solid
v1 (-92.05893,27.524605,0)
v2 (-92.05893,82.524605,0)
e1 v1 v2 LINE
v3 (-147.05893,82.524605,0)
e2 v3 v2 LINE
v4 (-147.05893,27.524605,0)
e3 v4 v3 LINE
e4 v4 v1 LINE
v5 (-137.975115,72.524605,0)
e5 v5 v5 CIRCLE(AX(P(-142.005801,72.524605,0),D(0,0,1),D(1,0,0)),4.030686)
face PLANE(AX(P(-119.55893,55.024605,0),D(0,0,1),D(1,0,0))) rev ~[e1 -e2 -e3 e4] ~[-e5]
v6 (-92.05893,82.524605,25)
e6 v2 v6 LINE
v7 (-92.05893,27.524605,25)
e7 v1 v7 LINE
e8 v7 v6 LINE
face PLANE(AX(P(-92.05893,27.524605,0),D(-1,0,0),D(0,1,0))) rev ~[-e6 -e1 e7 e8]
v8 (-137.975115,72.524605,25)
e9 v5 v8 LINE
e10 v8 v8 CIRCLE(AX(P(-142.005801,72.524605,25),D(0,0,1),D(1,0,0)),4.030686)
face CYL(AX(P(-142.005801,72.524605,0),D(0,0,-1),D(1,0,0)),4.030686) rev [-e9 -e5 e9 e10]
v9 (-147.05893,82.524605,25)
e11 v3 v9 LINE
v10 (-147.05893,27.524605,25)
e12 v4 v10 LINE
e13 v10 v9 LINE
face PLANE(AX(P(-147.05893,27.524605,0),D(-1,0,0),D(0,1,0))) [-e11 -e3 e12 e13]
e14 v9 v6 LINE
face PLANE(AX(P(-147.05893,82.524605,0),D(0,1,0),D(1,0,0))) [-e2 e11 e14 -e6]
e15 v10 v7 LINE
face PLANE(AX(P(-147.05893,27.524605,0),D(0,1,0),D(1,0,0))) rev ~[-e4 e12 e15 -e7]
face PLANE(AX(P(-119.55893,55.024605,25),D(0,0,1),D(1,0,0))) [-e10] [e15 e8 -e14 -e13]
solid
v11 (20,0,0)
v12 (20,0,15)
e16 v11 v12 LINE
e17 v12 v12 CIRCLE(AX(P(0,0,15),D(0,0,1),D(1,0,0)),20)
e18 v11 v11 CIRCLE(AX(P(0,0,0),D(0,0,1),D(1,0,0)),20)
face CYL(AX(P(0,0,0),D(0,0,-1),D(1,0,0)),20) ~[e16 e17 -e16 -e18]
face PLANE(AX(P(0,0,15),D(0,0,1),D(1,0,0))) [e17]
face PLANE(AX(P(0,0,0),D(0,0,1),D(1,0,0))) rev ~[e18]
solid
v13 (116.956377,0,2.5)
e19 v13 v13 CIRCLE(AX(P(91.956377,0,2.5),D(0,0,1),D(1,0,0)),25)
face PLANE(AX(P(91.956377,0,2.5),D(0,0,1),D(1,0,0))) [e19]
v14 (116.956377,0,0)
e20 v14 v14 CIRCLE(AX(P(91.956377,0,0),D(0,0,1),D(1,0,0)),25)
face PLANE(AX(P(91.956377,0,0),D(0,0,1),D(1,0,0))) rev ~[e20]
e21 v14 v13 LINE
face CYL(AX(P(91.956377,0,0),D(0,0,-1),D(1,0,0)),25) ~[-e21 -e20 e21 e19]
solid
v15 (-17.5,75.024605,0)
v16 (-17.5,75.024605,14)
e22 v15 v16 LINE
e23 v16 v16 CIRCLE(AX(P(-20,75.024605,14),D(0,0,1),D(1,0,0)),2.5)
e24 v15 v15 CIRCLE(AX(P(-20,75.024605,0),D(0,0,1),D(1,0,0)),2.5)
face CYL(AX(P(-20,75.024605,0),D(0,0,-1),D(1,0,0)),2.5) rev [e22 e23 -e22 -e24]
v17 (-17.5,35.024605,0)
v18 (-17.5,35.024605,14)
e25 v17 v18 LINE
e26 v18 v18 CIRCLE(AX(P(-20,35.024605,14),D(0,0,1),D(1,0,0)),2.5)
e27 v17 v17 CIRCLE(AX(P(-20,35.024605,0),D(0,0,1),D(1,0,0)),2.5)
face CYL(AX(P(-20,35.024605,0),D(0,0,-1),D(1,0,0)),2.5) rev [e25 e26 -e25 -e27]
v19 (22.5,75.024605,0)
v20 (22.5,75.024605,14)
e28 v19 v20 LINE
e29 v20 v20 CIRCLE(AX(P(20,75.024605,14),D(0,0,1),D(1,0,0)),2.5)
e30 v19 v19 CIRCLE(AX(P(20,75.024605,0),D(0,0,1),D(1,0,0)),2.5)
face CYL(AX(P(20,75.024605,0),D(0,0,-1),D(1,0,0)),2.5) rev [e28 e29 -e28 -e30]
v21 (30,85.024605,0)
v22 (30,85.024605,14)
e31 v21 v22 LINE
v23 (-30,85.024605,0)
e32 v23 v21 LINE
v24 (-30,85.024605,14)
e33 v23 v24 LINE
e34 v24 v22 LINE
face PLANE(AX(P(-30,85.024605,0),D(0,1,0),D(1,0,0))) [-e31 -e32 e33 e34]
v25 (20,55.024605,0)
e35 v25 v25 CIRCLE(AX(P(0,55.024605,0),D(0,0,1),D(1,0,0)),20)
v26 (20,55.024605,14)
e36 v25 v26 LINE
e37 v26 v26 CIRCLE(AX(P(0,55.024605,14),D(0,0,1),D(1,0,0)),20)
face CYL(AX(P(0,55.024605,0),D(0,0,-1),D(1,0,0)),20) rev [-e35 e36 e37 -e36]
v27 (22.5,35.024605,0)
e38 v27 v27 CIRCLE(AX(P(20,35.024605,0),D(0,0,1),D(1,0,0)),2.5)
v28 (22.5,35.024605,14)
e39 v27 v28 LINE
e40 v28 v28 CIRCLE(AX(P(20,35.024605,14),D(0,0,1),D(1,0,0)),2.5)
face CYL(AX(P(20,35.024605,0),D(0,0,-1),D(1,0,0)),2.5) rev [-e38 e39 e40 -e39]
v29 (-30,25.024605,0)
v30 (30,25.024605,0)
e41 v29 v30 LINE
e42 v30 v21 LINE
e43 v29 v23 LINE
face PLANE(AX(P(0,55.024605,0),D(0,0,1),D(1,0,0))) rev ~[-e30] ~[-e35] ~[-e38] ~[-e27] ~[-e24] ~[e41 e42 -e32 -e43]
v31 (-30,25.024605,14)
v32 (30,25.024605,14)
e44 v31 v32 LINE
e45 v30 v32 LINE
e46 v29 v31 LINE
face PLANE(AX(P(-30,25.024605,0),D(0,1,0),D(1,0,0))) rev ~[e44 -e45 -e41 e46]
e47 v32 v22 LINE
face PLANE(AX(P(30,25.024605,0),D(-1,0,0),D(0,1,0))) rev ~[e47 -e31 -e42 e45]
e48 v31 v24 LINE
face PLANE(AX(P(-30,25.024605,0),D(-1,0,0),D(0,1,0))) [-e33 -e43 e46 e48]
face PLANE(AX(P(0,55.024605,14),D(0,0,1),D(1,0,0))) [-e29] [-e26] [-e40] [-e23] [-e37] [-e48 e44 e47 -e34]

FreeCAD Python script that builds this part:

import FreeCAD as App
import Part
import Sketcher

V = App.Vector

doc = App.newDocument("Part")
body = doc.addObject("PartDesign::Body", "Body")

# Sketch on XY plane
sketch1 = body.newObject("Sketcher::SketchObject", "Sketch")
sketch1.AttachmentSupport = (doc.getObject("XY_Plane"), [""])
sketch1.MapMode = "FlatFace"
sketch1.addGeometry(Part.Circle(V(0, 0, 0), V(0, 0, 1), 20), False)
sketch1.addConstraint(Sketcher.Constraint("Coincident", 0, 3, -1, 1))
sketch1.addConstraint(Sketcher.Constraint("Diameter", 0, 40.0))
pad1 = body.newObject("PartDesign::Pad", "Pad")
pad1.Profile = sketch1
pad1.Length = 15
body2 = doc.addObject("PartDesign::Body", "Body001")

# Sketch on XY plane
sketch2 = body2.newObject("Sketcher::SketchObject", "Sketch001")
sketch2.AttachmentSupport = (doc.getObject("XY_Plane001"), [""])
sketch2.MapMode = "FlatFace"
sketch2.addGeometry(Part.LineSegment(V(-30, 85, 0), V(-30, 25, 0)), False)
sketch2.addGeometry(Part.LineSegment(V(-30, 25, 0), V(30, 25, 0)), False)
sketch2.addGeometry(Part.LineSegment(V(30, 25, 0), V(30, 85, 0)), False)
sketch2.addGeometry(Part.LineSegment(V(30, 85, 0), V(-30, 85, 0)), False)
sketch2.addGeometry(Part.Circle(V(-20, 35, 0), V(0, 0, 1), 2.5), False)
sketch2.addGeometry(Part.Circle(V(20, 35, 0), V(0, 0, 1), 2.5), False)
sketch2.addGeometry(Part.Circle(V(-20, 75, 0), V(0, 0, 1), 2.5), False)
sketch2.addGeometry(Part.Circle(V(0, 55, 0), V(0, 0, 1), 20), False)
sketch2.addGeometry(Part.Circle(V(20, 75, 0), V(0, 0, 1), 2.5), False)
sketch2.addConstraint(Sketcher.Constraint("Coincident", 0, 2, 1, 1))
sketch2.addConstraint(Sketcher.Constraint("Coincident", 1, 2, 2, 1))
sketch2.addConstraint(Sketcher.Constraint("Coincident", 2, 2, 3, 1))
sketch2.addConstraint(Sketcher.Constraint("Coincident", 3, 2, 0, 1))
sketch2.addConstraint(Sketcher.Constraint("Vertical", 0))
sketch2.addConstraint(Sketcher.Constraint("Horizontal", 1))
sketch2.addConstraint(Sketcher.Constraint("Vertical", 2))
sketch2.addConstraint(Sketcher.Constraint("Horizontal", 3))
sketch2.addConstraint(Sketcher.Constraint("Equal", 4, 5))
sketch2.addConstraint(Sketcher.Constraint("Equal", 5, 6))
sketch2.addConstraint(Sketcher.Constraint("Equal", 6, 8))
sketch2.addConstraint(Sketcher.Constraint("Symmetric", 4, 3, 5, 3, -2))
sketch2.addConstraint(Sketcher.Constraint("Symmetric", 6, 3, 8, 3, -2))
sketch2.addConstraint(Sketcher.Constraint("PointOnObject", 7, 3, -2))
sketch2.addConstraint(Sketcher.Constraint("Vertical", 4, 3, 6, 3))
sketch2.addConstraint(Sketcher.Constraint("Equal", 3, 0))
sketch2.addConstraint(Sketcher.Constraint("Diameter", 4, 5.0))
sketch2.addConstraint(Sketcher.Constraint("Diameter", 7, 40.0))
sketch2.addConstraint(Sketcher.Constraint("DistanceX", 1, 1, 1, 2, 60.0))
sketch2.addConstraint(Sketcher.Constraint("DistanceX", 4, 3, -1, 1, 20.0))
sketch2.addConstraint(Sketcher.Constraint("DistanceX", 0, 2, -1, 1, 30.0))
sketch2.addConstraint(Sketcher.Constraint("DistanceY", 4, 3, 6, 3, 40.0))
sketch2.addConstraint(Sketcher.Constraint("DistanceY", 7, 3, 6, 3, 20.0))
sketch2.addConstraint(Sketcher.Constraint("DistanceY", 0, 2, 4, 3, 10.0))
sketch2.addConstraint(Sketcher.Constraint("DistanceY", -1, 1, 4, 3, 35.024605))
pad2 = body2.newObject("PartDesign::Pad", "Pad001")
pad2.Profile = sketch2
pad2.Length = 14
body3 = doc.addObject("PartDesign::Body", "Body002")

# Sketch on XY plane
sketch3 = body3.newObject("Sketcher::SketchObject", "Sketch002")
sketch3.AttachmentSupport = (doc.getObject("XY_Plane002"), [""])
sketch3.MapMode = "FlatFace"
sketch3.addGeometry(Part.Circle(V(92, 0, 0), V(0, 0, 1), 25), False)
sketch3.addConstraint(Sketcher.Constraint("PointOnObject", 0, 3, -1))
sketch3.addConstraint(Sketcher.Constraint("Diameter", 0, 50.0))
sketch3.addConstraint(Sketcher.Constraint("DistanceX", -1, 1, 0, 3, 91.956377))
pad3 = body3.newObject("PartDesign::Pad", "Pad002")
pad3.Profile = sketch3
pad3.Length = 2.5
body4 = doc.addObject("PartDesign::Body", "Body003")

# Sketch on XY plane
sketch4 = body4.newObject("Sketcher::SketchObject", "Sketch003")
sketch4.AttachmentSupport = (doc.getObject("XY_Plane003"), [""])
sketch4.MapMode = "FlatFace"
sketch4.addGeometry(Part.LineSegment(V(-147.1, 82.5, 0), V(-147.1, 27.5, 0)), False)
sketch4.addGeometry(Part.LineSegment(V(-147.1, 27.5, 0), V(-92.1, 27.5, 0)), False)
sketch4.addGeometry(Part.LineSegment(V(-92.1, 27.5, 0), V(-92.1, 82.5, 0)), False)
sketch4.addGeometry(Part.LineSegment(V(-92.1, 82.5, 0), V(-147.1, 82.5, 0)), False)
sketch4.addGeometry(Part.Circle(V(-142, 72.5, 0), V(0, 0, 1), 4), False)
sketch4.addConstraint(Sketcher.Constraint("Coincident", 0, 2, 1, 1))
sketch4.addConstraint(Sketcher.Constraint("Coincident", 1, 2, 2, 1))
sketch4.addConstraint(Sketcher.Constraint("Coincident", 2, 2, 3, 1))
sketch4.addConstraint(Sketcher.Constraint("Coincident", 3, 2, 0, 1))
sketch4.addConstraint(Sketcher.Constraint("Vertical", 0))
sketch4.addConstraint(Sketcher.Constraint("Horizontal", 1))
sketch4.addConstraint(Sketcher.Constraint("Vertical", 2))
sketch4.addConstraint(Sketcher.Constraint("Horizontal", 3))
sketch4.addConstraint(Sketcher.Constraint("Equal", 3, 0))
sketch4.addConstraint(Sketcher.Constraint("DistanceX", 1, 1, 1, 2, 55.0))
sketch4.addConstraint(Sketcher.Constraint("DistanceY", 0, 2, 4, 3, 45.0))
sketch4.addConstraint(Sketcher.Constraint("Diameter", 4, 8.061372))
sketch4.addConstraint(Sketcher.Constraint("DistanceX", 4, 3, -1, 1, 142.005801))
sketch4.addConstraint(Sketcher.Constraint("DistanceX", 0, 2, -1, 1, 147.05893))
sketch4.addConstraint(Sketcher.Constraint("DistanceY", -1, 1, 4, 3, 72.524605))
pad4 = body4.newObject("PartDesign::Pad", "Pad003")
pad4.Profile = sketch4
pad4.Length = 25

doc.recompute()
